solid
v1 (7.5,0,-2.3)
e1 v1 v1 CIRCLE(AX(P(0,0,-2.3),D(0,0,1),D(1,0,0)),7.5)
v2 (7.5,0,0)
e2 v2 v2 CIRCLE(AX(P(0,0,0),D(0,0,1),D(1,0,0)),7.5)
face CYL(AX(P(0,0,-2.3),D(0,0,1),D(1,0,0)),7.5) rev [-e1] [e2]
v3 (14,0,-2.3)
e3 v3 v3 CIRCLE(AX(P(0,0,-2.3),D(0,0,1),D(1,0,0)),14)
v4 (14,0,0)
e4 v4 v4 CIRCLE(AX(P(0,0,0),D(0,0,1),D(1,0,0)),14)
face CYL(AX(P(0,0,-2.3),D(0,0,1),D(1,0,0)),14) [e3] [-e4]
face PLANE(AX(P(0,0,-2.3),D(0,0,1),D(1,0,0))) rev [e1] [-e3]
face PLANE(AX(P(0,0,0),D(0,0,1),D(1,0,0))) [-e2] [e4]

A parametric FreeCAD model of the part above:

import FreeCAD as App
import Part
import Sketcher

V = App.Vector
Q = App.Units.Quantity

doc = App.newDocument("Part")
body = doc.addObject("PartDesign::Body", "Body")

# Sketch on XY plane
sketch1 = body.newObject("Sketcher::SketchObject", "Sketch")
sketch1.AttachmentSupport = (doc.getObject("XY_Plane"), [""])
sketch1.MapMode = "FlatFace"
sketch1.addGeometry([
    Part.Circle(V(0, 0, 0), V(0, 0, 1), 14),
    Part.Circle(V(0, 0, 0), V(0, 0, 1), 8),
], False)
sketch1.addConstraint([
    Sketcher.Constraint("Coincident", 0, 3, -1, 1),
    Sketcher.Constraint("Coincident", 1, 3, -1, 1),
    Sketcher.Constraint("Diameter", 0, Q("28 mm")),
    Sketcher.Constraint("Diameter", 1, Q("15 mm")),
])
pad1 = body.newObject("PartDesign::Pad", "Pad")
pad1.Profile = sketch1
pad1.Length = 2.3
pad1.Reversed = True

doc.recompute()
